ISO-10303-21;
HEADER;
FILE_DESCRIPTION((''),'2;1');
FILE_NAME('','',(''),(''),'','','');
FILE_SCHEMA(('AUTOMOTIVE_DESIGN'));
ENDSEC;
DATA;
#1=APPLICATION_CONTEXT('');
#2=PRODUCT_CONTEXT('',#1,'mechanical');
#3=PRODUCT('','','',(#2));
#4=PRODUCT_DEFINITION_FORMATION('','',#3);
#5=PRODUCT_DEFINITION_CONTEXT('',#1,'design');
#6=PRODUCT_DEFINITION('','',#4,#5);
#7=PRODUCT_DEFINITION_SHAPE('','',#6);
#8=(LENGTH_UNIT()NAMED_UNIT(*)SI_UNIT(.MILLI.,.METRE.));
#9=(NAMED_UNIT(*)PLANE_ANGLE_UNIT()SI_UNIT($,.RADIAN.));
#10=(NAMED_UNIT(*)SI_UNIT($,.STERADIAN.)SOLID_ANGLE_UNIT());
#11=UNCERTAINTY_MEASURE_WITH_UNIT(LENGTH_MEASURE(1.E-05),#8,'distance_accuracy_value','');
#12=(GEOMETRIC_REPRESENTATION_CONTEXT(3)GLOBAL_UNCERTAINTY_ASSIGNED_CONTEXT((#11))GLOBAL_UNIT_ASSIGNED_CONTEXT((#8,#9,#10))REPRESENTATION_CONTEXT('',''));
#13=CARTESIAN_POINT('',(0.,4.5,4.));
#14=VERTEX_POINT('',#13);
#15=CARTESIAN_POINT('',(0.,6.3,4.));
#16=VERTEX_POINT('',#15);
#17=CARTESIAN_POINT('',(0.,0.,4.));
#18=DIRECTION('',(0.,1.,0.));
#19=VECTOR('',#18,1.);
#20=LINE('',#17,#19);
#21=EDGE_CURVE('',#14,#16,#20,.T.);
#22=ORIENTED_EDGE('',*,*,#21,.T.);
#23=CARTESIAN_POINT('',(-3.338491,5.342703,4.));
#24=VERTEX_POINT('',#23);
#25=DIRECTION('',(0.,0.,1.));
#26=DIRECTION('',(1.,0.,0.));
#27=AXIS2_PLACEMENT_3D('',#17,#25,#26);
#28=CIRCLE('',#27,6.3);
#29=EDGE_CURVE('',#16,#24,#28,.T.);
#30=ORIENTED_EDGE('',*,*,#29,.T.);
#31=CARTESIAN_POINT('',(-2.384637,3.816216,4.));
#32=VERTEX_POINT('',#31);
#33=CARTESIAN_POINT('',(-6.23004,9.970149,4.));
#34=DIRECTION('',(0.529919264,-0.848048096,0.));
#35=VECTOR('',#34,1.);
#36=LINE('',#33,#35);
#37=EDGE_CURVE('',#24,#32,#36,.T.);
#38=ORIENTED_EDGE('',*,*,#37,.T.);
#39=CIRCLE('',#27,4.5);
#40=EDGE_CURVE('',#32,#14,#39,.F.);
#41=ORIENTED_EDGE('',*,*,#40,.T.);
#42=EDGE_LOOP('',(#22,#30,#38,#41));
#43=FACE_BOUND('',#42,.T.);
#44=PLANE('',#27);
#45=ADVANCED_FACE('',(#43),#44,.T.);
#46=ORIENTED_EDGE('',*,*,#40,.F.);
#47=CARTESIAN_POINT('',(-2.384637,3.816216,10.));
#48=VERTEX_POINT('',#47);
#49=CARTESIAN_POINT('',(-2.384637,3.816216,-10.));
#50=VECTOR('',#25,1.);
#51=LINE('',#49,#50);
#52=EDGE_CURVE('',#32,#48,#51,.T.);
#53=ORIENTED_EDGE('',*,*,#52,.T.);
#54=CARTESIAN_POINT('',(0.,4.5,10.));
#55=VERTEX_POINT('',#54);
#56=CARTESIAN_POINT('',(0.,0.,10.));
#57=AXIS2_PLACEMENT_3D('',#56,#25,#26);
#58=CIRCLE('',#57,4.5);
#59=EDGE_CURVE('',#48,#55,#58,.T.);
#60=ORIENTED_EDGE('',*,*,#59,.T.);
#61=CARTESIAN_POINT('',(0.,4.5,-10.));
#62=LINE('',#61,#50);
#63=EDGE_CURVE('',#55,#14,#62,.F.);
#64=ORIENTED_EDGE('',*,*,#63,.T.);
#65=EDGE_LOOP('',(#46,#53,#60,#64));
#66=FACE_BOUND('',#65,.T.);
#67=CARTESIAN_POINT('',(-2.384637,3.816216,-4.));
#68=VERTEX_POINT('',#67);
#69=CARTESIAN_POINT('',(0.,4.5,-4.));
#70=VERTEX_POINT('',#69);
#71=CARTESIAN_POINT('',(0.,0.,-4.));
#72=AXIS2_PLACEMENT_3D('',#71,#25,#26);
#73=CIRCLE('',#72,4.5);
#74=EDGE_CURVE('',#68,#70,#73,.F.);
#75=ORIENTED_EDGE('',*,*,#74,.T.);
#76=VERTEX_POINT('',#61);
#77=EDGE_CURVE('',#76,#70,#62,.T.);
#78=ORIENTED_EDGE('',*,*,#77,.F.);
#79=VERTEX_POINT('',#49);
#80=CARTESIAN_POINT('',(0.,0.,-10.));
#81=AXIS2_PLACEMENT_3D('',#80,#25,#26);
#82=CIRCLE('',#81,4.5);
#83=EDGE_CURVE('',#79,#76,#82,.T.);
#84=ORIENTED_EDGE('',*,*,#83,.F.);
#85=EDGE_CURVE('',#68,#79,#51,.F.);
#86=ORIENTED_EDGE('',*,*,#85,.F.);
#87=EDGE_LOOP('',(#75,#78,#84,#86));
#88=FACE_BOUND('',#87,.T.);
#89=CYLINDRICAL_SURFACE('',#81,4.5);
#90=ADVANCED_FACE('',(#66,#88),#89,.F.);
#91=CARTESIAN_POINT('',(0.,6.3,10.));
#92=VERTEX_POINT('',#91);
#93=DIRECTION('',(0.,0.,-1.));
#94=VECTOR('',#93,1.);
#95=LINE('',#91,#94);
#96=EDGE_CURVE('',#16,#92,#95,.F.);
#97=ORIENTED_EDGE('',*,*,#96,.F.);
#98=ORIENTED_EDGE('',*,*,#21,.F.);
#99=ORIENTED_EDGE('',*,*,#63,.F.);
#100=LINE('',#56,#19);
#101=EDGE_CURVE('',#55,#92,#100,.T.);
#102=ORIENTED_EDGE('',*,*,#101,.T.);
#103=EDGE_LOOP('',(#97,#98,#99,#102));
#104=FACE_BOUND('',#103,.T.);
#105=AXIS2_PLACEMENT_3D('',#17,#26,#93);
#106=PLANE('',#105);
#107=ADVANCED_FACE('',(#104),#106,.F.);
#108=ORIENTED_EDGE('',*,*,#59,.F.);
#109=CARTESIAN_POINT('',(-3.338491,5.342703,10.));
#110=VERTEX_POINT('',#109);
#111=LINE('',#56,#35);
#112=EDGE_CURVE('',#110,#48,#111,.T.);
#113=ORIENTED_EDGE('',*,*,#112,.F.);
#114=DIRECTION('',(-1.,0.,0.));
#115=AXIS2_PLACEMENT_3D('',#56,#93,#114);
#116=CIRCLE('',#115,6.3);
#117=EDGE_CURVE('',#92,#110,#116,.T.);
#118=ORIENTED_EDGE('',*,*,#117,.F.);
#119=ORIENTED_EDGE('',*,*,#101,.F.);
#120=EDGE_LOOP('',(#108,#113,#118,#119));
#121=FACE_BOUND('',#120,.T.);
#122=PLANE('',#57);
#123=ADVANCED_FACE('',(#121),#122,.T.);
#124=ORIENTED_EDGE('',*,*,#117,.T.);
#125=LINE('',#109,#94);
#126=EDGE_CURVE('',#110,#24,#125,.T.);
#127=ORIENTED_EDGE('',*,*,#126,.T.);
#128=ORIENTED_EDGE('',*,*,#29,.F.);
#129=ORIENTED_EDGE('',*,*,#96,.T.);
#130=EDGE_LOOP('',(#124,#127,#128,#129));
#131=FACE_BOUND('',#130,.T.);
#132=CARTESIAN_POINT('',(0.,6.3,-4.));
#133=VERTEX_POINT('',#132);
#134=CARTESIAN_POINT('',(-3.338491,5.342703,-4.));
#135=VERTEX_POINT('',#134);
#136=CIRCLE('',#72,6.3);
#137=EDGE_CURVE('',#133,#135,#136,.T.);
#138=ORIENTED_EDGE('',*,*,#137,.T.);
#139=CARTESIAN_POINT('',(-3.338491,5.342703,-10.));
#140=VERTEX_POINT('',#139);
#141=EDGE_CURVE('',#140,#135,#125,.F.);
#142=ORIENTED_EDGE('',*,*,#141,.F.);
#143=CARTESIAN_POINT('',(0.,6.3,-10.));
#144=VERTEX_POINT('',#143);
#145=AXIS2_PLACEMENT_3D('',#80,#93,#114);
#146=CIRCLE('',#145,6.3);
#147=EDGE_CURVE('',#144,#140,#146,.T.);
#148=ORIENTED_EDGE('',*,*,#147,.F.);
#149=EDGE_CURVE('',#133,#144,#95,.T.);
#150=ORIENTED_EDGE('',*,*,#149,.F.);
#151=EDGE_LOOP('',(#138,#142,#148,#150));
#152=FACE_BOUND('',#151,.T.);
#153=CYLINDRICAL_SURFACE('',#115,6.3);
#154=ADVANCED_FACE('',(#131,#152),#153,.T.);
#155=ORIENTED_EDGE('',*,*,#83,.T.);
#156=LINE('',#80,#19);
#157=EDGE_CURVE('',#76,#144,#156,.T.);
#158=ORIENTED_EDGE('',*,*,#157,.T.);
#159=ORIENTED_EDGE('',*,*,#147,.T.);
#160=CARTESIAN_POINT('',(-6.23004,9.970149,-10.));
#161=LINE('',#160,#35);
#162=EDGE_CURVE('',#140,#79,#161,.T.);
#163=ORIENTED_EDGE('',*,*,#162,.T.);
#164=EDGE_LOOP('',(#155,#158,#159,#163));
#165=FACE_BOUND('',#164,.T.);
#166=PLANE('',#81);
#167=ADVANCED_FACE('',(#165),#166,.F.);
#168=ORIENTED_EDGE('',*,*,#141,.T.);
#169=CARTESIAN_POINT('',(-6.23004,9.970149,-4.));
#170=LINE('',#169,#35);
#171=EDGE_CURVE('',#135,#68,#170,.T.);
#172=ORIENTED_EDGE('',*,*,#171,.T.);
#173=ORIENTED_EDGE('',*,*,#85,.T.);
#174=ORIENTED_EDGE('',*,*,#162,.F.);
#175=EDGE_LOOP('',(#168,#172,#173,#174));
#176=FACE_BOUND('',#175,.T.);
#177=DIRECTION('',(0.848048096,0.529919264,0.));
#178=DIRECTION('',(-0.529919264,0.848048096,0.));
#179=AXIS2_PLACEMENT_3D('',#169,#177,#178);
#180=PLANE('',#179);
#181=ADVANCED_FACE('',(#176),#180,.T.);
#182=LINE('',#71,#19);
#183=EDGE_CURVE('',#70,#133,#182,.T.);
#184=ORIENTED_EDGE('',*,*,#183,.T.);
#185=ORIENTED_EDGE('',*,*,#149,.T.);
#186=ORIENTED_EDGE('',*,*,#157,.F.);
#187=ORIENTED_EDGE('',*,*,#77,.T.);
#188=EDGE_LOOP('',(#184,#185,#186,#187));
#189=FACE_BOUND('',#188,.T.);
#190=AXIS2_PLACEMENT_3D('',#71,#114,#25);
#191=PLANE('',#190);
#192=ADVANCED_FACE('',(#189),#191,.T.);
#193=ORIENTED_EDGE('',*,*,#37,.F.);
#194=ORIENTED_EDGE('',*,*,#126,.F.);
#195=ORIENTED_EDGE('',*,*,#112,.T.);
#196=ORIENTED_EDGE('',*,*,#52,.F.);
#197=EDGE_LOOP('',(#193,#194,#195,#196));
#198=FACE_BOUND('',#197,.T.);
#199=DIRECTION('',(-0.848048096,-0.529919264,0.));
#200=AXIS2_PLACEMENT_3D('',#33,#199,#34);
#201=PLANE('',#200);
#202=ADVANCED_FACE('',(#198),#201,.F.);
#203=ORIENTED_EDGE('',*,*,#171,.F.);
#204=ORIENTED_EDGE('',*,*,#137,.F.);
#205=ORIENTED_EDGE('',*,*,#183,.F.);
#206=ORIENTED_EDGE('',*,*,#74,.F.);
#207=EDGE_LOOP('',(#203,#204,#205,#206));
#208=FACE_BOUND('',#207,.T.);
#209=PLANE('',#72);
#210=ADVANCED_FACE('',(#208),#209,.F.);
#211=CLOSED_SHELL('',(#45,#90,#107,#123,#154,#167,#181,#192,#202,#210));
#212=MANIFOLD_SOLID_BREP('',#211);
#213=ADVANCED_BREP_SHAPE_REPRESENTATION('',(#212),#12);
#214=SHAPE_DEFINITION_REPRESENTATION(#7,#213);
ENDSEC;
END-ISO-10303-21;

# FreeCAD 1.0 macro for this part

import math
import FreeCAD as App
import Part
import Sketcher

V = App.Vector
Q = App.Units.Quantity

doc = App.newDocument("Part")
params = doc.addObject("Spreadsheet::Sheet", "Params")
for row, (alias, value) in enumerate([
    ("sketch1_diameter", "13 mm"),
    ("sketch1_diameter2", "9 mm"),
    ("pad1_length", "10 mm"),
    ("pad1_length2", "10 mm"),
    ("pocket1_length", "6 mm"),
    ("pocket2_length", "6 mm"),
    ("sketch4_diameter", "13 mm"),
    ("sketch4_diameter2", "12.6 mm"),
], start=1):
    params.set(f"A{row}", alias)
    params.set(f"B{row}", "=" + value)
    params.setAlias(f"B{row}", alias)

body = doc.addObject("PartDesign::Body", "Body")

sketch1 = body.newObject("Sketcher::SketchObject", "Sketch")
sketch1.AttachmentSupport = (doc.getObject("XY_Plane"), [""])
sketch1.MapMode = "FlatFace"
sketch1.addGeometry([
    Part.Circle(V(0, 0, 0), V(0, 0, 1), 6.5),
    Part.Circle(V(0, 0, 0), V(0, 0, 1), 4.5),
], False)
sketch1.addConstraint([
    Sketcher.Constraint("Coincident", 0, 3, -1, 1),
    Sketcher.Constraint("Coincident", 1, 3, -1, 1),
    Sketcher.Constraint("Diameter", 0, 13.0),
    Sketcher.Constraint("Diameter", 1, 9.0),
])
sketch1.setExpression("Constraints[2]", "Params.sketch1_diameter")
sketch1.setExpression("Constraints[3]", "Params.sketch1_diameter2")
pad1 = body.newObject("PartDesign::Pad", "Pad")
pad1.Profile = sketch1
pad1.Type = "TwoLengths"
pad1.setExpression("Length", "Params.pad1_length")
pad1.setExpression("Length2", "Params.pad1_length2")

sketch2 = body.newObject("Sketcher::SketchObject", "Sketch001")
sketch2.AttachmentSupport = (doc.getObject("XY_Plane"), [""])
sketch2.MapMode = "FlatFace"
sketch2.AttachmentOffset = App.Placement(V(0, 0, 10), App.Rotation())
sketch2.addGeometry([
    Part.LineSegment(V(-6.23004, 9.970149, 0), V(0, 0, 0)),
    Part.LineSegment(V(0, 0, 0), V(0, 11.756584, 0)),
    Part.ArcOfCircle(Part.Circle(V(0, 0, 0), V(0, 0, 1), 11.756584), math.radians(90), math.radians(122)),
], False)
sketch2.addConstraint([
    Sketcher.Constraint("Coincident", 0, 2, 1, 1),
    Sketcher.Constraint("Coincident", 1, 2, 2, 1),
    Sketcher.Constraint("Coincident", 2, 2, 0, 1),
    Sketcher.Constraint("Vertical", 1),
    Sketcher.Constraint("Coincident", 2, 3, -1, 1),
    Sketcher.Constraint("Coincident", 0, 2, -1, 1),
    Sketcher.Constraint("Angle", 0, Q("-58 deg")),
    Sketcher.Constraint("Radius", 2, 11.756584),
])
pocket1 = body.newObject("PartDesign::Pocket", "Pocket")
pocket1.Profile = sketch2
pocket1.setExpression("Length", "Params.pocket1_length")

sketch3 = body.newObject("Sketcher::SketchObject", "Sketch002")
sketch3.AttachmentSupport = (doc.getObject("XY_Plane"), [""])
sketch3.MapMode = "FlatFace"
sketch3.AttachmentOffset = App.Placement(V(0, 0, -10), App.Rotation())
sketch3.addGeometry([
    Part.LineSegment(V(-6.23004, 9.970149, 0), V(0, 0, 0)),
    Part.LineSegment(V(0, 0, 0), V(0, 11.756584, 0)),
    Part.ArcOfCircle(Part.Circle(V(0, 0, 0), V(0, 0, 1), 11.756584), math.radians(90), math.radians(122)),
], False)
sketch3.addConstraint([
    Sketcher.Constraint("Coincident", 0, 2, 1, 1),
    Sketcher.Constraint("Coincident", 1, 2, 2, 1),
    Sketcher.Constraint("Coincident", 2, 2, 0, 1),
    Sketcher.Constraint("Vertical", 1),
    Sketcher.Constraint("Coincident", 2, 3, -1, 1),
    Sketcher.Constraint("Coincident", 0, 2, -1, 1),
    Sketcher.Constraint("Angle", 0, Q("-58 deg")),
    Sketcher.Constraint("Radius", 2, 11.756584),
])
pocket2 = body.newObject("PartDesign::Pocket", "Pocket001")
pocket2.Profile = sketch3
pocket2.setExpression("Length", "Params.pocket2_length")
pocket2.Reversed = True

sketch4 = body.newObject("Sketcher::SketchObject", "Sketch003")
sketch4.AttachmentSupport = (doc.getObject("XY_Plane"), [""])
sketch4.MapMode = "FlatFace"
sketch4.AttachmentOffset = App.Placement(V(0, 0, -10), App.Rotation())
sketch4.addGeometry([
    Part.Circle(V(0, 0, 0), V(0, 0, 1), 6.5),
    Part.Circle(V(0, 0, 0), V(0, 0, 1), 6.3),
], False)
sketch4.addConstraint([
    Sketcher.Constraint("Coincident", 0, 3, -1, 1),
    Sketcher.Constraint("Coincident", 1, 3, -1, 1),
    Sketcher.Constraint("Diameter", 0, 13.0),
    Sketcher.Constraint("Diameter", 1, 12.6),
])
sketch4.setExpression("Constraints[2]", "Params.sketch4_diameter")
sketch4.setExpression("Constraints[3]", "Params.sketch4_diameter2")
pocket3 = body.newObject("PartDesign::Pocket", "Pocket002")
pocket3.Profile = sketch4
pocket3.Type = "ThroughAll"
pocket3.Reversed = True

doc.recompute()
